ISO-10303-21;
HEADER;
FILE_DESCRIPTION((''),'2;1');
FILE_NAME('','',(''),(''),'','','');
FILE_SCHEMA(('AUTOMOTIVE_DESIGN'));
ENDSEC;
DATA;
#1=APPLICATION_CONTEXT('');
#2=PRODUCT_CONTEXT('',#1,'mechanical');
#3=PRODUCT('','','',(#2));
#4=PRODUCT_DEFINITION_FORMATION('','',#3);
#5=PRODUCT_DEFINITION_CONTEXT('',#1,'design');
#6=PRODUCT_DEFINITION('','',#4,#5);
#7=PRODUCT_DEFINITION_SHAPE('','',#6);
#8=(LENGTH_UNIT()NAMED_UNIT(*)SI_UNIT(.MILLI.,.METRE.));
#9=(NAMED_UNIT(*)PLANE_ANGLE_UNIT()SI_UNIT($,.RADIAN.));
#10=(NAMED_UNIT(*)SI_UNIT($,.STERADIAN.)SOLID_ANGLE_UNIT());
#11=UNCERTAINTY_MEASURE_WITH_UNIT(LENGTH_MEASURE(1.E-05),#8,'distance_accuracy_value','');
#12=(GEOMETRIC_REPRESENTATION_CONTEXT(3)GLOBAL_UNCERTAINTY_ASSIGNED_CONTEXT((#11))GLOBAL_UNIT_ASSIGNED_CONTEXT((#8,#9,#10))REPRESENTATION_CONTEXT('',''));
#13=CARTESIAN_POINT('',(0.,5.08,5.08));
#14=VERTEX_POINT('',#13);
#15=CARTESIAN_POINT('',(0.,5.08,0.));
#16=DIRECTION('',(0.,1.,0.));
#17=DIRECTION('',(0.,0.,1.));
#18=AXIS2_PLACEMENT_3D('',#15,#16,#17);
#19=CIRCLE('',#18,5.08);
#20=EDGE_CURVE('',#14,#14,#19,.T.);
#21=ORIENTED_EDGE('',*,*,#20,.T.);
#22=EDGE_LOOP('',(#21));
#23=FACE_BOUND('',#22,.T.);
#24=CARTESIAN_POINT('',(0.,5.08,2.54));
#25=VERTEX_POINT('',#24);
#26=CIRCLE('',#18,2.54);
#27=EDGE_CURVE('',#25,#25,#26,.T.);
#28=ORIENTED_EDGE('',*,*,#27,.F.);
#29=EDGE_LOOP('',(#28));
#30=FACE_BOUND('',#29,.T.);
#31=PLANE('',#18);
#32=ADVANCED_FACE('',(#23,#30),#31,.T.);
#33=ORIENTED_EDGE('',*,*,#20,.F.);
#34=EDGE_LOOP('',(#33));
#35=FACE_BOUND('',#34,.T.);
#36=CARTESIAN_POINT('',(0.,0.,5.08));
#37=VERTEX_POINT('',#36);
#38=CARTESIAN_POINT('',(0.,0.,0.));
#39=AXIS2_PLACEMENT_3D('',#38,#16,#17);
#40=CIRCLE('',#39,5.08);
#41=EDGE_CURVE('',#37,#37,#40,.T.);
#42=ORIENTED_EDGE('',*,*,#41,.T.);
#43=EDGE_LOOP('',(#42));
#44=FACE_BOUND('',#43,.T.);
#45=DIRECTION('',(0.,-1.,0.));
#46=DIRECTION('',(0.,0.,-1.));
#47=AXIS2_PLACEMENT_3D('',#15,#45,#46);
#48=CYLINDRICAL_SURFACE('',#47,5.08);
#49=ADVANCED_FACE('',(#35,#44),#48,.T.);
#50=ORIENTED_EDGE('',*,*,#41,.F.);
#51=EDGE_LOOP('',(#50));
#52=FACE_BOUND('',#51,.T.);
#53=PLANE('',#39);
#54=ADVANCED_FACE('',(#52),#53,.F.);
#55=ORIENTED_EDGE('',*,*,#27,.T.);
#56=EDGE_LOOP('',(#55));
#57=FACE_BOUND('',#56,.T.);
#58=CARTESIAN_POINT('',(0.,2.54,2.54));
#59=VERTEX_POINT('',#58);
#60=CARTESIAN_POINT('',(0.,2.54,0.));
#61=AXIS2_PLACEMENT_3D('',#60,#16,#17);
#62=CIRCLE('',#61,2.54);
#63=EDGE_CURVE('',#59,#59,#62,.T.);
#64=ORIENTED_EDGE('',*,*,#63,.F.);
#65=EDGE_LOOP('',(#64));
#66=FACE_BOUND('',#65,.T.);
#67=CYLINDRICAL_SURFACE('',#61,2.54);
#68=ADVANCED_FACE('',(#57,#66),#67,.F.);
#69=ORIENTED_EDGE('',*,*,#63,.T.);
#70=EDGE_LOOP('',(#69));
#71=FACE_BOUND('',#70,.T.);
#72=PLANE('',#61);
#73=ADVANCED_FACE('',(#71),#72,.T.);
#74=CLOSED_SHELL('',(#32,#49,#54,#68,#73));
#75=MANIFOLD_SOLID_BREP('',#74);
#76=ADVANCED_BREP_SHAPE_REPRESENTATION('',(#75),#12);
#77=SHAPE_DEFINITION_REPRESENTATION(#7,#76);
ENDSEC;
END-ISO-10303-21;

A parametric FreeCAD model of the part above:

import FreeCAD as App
import Part
import Sketcher
Q = App.Units.Quantity

doc = App.newDocument("Part")
params = doc.addObject("Spreadsheet::Sheet", "Params")
for row, (alias, value) in enumerate([
    ("sketch1_diameter", "0.4 in"),
    ("pad1_length", "0.2 in"),
    ("sketch2_diameter", "0.2 in"),
    ("pocket1_length", "0.1 in"),
], start=1):
    params.set(f"A{row}", alias)
    params.set(f"B{row}", "=" + value)
    params.setAlias(f"B{row}", alias)

body = doc.addObject("PartDesign::Body", "Body")

# Sketch on XZ plane
sketch1 = doc.addObject("Sketcher::SketchObject", "Sketch")
body.addObject(sketch1)
sketch1.AttachmentSupport = (doc.XZ_Plane, [""])
sketch1.MapMode = "FlatFace"
sketch1.addGeometry(Part.Circle(App.Vector(0, 0, 0), App.Vector(0, 0, 1), 5.08), False)
sketch1.addConstraint([
    Sketcher.Constraint("Coincident", 0, 3, -1, 1),
    Sketcher.Constraint("Diameter", 0, Q("0.4 in")),
])
sketch1.setExpression("Constraints[1]", "Params.sketch1_diameter")
pad1 = doc.addObject("PartDesign::Pad", "Pad")
body.addObject(pad1)
pad1.Profile = sketch1
pad1.setExpression("Length", "Params.pad1_length")
pad1.Reversed = True

# Sketch on XZ plane
sketch2 = doc.addObject("Sketcher::SketchObject", "Sketch001")
body.addObject(sketch2)
sketch2.AttachmentSupport = (doc.XZ_Plane, [""])
sketch2.MapMode = "FlatFace"
sketch2.AttachmentOffset = App.Placement(App.Vector(0, 0, -0.2 * 25.4), App.Rotation())
sketch2.addGeometry(Part.Circle(App.Vector(0, 0, 0), App.Vector(0, 0, 1), 2.54), False)
sketch2.addConstraint([
    Sketcher.Constraint("Coincident", 0, 3, -1, 1),
    Sketcher.Constraint("Diameter", 0, Q("0.2 in")),
])
sketch2.setExpression("Constraints[1]", "Params.sketch2_diameter")
pocket1 = doc.addObject("PartDesign::Pocket", "Pocket")
body.addObject(pocket1)
pocket1.Profile = sketch2
pocket1.setExpression("Length", "Params.pocket1_length")
pocket1.Reversed = True

doc.recompute()
